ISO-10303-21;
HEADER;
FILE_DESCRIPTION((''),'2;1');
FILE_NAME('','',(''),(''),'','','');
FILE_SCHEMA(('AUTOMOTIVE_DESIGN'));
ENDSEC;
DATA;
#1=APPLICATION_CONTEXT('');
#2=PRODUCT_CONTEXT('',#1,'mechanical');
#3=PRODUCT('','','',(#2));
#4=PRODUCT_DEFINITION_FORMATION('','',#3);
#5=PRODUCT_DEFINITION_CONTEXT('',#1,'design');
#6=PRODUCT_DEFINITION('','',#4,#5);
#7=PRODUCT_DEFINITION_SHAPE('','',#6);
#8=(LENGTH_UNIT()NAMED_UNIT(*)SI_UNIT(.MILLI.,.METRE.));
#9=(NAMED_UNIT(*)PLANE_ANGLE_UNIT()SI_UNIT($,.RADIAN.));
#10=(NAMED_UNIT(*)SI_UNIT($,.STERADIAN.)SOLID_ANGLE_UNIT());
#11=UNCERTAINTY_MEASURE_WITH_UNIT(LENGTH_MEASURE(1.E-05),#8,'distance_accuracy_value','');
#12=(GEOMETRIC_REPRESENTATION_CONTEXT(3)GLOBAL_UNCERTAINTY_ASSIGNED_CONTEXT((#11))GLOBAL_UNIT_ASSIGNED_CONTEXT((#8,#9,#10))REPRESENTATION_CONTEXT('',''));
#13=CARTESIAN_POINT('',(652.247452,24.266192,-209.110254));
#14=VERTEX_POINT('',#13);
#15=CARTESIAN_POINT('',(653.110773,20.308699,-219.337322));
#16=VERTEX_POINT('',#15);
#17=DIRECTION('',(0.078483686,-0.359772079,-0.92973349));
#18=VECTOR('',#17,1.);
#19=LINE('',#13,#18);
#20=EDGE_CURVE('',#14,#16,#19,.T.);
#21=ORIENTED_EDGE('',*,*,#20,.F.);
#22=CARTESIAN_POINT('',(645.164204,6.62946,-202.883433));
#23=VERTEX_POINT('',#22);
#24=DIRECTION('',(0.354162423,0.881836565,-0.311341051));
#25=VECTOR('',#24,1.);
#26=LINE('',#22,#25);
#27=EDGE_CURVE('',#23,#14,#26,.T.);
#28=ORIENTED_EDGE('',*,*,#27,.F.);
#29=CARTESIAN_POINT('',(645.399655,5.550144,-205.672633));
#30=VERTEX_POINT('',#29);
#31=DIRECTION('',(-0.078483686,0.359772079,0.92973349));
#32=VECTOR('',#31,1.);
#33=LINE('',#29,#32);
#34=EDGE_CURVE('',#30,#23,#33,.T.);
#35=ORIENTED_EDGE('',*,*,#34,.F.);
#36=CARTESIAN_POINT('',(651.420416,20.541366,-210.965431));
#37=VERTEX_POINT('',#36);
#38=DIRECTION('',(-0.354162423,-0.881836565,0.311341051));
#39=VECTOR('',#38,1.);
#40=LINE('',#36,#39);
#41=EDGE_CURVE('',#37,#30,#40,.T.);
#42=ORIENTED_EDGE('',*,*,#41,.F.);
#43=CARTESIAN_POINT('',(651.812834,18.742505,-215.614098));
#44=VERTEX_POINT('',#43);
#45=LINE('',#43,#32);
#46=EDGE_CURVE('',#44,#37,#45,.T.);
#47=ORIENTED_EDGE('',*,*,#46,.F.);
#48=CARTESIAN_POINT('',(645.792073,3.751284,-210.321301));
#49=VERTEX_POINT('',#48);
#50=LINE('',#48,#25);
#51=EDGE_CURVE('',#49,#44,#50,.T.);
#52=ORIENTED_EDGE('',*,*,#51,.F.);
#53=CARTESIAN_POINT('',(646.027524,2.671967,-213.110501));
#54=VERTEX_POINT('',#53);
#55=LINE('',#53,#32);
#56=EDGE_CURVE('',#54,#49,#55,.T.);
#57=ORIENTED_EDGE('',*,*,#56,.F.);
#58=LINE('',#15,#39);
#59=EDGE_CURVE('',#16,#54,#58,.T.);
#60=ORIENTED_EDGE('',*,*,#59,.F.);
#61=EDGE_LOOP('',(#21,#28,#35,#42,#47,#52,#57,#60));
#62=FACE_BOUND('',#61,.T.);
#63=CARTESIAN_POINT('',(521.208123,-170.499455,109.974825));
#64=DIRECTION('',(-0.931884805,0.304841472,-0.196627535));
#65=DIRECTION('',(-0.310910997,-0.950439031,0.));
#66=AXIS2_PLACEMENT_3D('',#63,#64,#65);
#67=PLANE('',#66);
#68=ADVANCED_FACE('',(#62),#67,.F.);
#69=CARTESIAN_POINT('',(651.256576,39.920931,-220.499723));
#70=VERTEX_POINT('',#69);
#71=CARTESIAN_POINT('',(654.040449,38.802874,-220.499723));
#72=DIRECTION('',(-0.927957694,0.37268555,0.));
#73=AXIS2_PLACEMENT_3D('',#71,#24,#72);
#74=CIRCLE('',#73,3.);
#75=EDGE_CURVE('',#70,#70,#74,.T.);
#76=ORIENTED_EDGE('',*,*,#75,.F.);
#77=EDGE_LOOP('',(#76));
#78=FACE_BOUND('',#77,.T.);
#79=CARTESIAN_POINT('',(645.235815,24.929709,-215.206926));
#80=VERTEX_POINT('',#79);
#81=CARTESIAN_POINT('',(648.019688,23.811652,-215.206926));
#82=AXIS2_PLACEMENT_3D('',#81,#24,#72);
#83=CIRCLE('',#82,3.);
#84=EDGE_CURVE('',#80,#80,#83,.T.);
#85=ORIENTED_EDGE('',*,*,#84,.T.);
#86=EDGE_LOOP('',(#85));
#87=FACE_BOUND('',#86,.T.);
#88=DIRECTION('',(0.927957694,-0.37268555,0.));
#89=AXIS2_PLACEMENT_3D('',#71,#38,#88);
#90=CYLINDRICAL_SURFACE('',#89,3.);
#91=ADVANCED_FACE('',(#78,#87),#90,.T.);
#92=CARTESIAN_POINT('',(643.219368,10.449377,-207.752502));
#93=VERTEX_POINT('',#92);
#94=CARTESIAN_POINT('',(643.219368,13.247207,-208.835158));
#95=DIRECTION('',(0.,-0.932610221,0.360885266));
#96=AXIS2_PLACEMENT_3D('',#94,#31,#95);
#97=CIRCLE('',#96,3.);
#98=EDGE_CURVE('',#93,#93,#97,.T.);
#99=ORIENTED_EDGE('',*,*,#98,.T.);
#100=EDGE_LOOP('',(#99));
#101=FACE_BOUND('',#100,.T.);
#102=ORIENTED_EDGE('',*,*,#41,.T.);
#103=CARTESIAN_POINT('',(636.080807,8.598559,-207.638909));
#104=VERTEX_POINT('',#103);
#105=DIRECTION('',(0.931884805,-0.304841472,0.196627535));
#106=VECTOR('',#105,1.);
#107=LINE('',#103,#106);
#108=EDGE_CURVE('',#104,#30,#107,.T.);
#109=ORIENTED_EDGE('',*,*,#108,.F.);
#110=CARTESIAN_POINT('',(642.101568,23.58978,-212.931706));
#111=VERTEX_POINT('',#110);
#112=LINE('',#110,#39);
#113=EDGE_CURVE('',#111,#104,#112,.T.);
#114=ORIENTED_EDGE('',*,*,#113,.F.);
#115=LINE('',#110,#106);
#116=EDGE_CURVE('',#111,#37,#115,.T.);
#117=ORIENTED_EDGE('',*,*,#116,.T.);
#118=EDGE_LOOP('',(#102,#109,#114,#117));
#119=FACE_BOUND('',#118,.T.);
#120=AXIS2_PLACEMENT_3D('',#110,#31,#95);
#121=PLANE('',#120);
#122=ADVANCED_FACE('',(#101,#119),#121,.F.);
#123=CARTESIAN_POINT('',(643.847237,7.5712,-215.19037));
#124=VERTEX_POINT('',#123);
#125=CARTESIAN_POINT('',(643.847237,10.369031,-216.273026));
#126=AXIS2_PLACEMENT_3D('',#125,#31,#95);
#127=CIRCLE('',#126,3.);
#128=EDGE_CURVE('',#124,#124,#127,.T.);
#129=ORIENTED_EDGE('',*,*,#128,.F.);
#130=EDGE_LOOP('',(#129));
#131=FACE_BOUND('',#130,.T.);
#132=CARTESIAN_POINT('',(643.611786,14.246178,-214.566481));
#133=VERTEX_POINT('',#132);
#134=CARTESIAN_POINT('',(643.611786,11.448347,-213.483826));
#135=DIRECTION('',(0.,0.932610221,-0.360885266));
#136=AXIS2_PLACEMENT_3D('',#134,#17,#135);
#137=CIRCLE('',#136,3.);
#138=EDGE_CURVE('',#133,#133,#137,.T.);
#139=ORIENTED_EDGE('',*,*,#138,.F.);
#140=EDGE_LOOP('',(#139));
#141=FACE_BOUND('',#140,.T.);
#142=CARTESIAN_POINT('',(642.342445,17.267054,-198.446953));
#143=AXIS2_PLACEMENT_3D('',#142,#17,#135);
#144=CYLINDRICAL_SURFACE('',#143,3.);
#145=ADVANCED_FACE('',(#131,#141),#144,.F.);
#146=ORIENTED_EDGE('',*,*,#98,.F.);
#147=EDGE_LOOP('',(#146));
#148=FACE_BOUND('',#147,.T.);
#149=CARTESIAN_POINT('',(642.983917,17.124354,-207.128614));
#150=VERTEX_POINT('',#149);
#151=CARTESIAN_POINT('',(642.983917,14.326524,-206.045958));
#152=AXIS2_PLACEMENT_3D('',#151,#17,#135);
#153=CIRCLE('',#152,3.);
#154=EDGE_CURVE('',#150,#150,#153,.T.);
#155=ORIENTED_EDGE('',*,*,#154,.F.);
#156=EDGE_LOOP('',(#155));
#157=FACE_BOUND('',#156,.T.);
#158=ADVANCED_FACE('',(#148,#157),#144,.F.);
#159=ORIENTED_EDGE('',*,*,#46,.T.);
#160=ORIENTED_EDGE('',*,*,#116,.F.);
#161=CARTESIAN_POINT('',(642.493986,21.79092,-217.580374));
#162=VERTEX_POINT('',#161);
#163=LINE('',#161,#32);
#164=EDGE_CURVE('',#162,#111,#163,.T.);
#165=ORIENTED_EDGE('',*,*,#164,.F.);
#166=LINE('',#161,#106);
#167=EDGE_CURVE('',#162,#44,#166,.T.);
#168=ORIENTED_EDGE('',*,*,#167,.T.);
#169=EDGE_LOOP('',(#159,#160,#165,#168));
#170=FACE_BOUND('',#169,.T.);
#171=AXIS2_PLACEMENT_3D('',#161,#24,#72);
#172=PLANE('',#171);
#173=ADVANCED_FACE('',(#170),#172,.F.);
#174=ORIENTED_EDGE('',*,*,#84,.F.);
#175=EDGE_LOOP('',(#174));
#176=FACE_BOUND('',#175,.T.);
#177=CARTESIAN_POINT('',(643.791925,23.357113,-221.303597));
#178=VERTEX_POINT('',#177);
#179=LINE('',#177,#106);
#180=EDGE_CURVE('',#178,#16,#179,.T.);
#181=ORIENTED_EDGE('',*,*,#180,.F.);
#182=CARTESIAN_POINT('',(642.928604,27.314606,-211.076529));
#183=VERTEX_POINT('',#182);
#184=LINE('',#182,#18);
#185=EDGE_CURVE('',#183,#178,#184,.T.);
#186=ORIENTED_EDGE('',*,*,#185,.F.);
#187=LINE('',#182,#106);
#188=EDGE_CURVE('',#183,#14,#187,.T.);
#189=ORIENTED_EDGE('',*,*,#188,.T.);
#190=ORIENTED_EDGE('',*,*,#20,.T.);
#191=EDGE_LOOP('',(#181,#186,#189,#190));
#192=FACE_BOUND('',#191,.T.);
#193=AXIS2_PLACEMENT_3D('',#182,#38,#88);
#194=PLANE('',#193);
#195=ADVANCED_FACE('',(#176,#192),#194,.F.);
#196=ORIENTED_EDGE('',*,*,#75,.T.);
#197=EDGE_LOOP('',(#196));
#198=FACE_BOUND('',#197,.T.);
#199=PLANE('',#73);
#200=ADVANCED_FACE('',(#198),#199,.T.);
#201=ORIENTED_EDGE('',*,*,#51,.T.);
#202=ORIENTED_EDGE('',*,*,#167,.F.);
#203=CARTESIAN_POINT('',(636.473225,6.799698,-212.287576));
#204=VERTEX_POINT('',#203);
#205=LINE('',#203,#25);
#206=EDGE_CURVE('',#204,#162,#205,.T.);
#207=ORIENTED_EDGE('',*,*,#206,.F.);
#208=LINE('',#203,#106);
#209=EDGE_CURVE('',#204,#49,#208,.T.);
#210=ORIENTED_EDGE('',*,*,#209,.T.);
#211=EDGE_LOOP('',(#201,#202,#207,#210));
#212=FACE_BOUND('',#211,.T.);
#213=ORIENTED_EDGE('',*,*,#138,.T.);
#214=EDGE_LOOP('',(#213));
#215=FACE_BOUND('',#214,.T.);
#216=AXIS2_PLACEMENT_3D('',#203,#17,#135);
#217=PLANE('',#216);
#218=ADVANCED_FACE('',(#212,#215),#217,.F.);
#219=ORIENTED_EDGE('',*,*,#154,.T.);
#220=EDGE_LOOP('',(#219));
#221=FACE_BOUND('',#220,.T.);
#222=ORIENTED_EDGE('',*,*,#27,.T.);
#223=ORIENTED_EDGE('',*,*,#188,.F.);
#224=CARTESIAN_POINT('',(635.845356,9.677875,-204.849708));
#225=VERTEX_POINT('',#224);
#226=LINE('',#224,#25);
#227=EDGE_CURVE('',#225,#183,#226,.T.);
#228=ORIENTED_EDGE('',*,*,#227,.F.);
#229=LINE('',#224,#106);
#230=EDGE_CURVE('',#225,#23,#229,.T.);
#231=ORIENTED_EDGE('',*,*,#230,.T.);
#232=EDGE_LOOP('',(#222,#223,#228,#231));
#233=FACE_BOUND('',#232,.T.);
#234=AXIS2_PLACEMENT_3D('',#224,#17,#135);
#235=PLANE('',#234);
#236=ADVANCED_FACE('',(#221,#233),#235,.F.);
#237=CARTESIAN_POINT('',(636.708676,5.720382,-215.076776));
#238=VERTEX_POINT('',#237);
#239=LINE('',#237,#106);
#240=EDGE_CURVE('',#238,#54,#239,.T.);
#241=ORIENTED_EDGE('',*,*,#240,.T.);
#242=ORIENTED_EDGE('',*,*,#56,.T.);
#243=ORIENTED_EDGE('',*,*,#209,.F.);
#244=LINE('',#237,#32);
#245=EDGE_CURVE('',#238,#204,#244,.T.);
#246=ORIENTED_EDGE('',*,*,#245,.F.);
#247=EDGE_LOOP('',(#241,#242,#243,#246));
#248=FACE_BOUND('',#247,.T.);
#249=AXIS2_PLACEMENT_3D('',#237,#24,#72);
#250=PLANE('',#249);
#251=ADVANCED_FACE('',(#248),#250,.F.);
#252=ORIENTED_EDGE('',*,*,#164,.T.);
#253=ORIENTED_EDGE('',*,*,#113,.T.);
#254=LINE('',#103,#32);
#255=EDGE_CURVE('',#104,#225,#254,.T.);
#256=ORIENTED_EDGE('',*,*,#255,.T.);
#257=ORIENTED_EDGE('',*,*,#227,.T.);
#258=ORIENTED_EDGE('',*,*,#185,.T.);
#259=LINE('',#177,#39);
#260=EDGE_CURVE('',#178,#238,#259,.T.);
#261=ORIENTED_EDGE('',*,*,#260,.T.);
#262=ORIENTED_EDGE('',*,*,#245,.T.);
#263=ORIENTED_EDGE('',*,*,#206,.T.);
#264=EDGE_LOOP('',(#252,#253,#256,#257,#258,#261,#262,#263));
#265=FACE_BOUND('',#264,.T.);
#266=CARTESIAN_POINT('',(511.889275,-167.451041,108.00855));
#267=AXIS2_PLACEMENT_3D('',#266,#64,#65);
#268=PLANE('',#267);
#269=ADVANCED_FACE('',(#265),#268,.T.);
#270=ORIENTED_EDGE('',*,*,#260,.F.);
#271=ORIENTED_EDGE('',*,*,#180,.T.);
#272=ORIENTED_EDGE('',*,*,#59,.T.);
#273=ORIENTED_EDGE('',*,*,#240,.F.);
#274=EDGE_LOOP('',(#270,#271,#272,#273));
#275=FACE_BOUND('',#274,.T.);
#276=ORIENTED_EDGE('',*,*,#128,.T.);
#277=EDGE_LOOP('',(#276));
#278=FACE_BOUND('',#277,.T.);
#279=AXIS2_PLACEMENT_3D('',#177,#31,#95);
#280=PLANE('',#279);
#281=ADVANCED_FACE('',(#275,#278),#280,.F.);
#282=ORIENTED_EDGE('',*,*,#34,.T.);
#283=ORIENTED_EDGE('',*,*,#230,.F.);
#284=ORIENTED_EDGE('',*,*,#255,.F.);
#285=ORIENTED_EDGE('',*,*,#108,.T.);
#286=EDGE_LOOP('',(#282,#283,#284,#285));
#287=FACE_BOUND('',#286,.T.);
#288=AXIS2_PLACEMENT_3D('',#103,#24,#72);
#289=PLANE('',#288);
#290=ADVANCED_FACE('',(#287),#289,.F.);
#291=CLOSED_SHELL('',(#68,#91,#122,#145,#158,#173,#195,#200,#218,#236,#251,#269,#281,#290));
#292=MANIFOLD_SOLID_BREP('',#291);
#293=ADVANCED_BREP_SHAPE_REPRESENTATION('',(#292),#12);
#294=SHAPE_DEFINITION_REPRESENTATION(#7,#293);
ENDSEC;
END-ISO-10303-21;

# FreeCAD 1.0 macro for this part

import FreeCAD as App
import Part
import Sketcher
Q = App.Units.Quantity

doc = App.newDocument("Part")
body = doc.addObject("PartDesign::Body", "Body")

# Sketch on an angled plane
sketch1 = body.newObject("Sketcher::SketchObject", "Sketch")
sketch1.Placement = App.Placement(App.Vector(707.562217, 137.847, -295.175759), App.Rotation(App.Vector(0.354162423, 0.881836565, -0.311341051), App.Vector(0.078483686, -0.359772079, -0.92973349), App.Vector(-0.931884805, 0.304841472, -0.196627535), "ZXY"))
sketch1.addGeometry(Part.LineSegment(App.Vector(-166.5, -35.5, 0), App.Vector(-149.5, -35.5, 0)), False)
sketch1.addGeometry(Part.LineSegment(App.Vector(-149.5, -35.5, 0), App.Vector(-149.5, -40.5, 0)), False)
sketch1.addGeometry(Part.LineSegment(App.Vector(-149.5, -40.5, 0), App.Vector(-166.5, -40.5, 0)), False)
sketch1.addGeometry(Part.LineSegment(App.Vector(-166.5, -40.5, 0), App.Vector(-166.5, -43.5, 0)), False)
sketch1.addGeometry(Part.LineSegment(App.Vector(-166.5, -43.5, 0), App.Vector(-146.5, -43.5, 0)), False)
sketch1.addGeometry(Part.LineSegment(App.Vector(-146.5, -43.5, 0), App.Vector(-146.5, -32.5, 0)), False)
sketch1.addGeometry(Part.LineSegment(App.Vector(-146.5, -32.5, 0), App.Vector(-166.5, -32.5, 0)), False)
sketch1.addGeometry(Part.LineSegment(App.Vector(-166.5, -32.5, 0), App.Vector(-166.5, -35.5, 0)), False)
sketch1.addConstraint(Sketcher.Constraint("Coincident", 0, 2, 1, 1))
sketch1.addConstraint(Sketcher.Constraint("Coincident", 1, 2, 2, 1))
sketch1.addConstraint(Sketcher.Constraint("Coincident", 2, 2, 3, 1))
sketch1.addConstraint(Sketcher.Constraint("Coincident", 3, 2, 4, 1))
sketch1.addConstraint(Sketcher.Constraint("Coincident", 4, 2, 5, 1))
sketch1.addConstraint(Sketcher.Constraint("Coincident", 5, 2, 6, 1))
sketch1.addConstraint(Sketcher.Constraint("Coincident", 6, 2, 7, 1))
sketch1.addConstraint(Sketcher.Constraint("Coincident", 7, 2, 0, 1))
sketch1.addConstraint(Sketcher.Constraint("Horizontal", 0))
sketch1.addConstraint(Sketcher.Constraint("Vertical", 1))
sketch1.addConstraint(Sketcher.Constraint("Horizontal", 2))
sketch1.addConstraint(Sketcher.Constraint("Vertical", 3))
sketch1.addConstraint(Sketcher.Constraint("Horizontal", 4))
sketch1.addConstraint(Sketcher.Constraint("Vertical", 5))
sketch1.addConstraint(Sketcher.Constraint("Horizontal", 6))
sketch1.addConstraint(Sketcher.Constraint("Vertical", 7))
sketch1.addConstraint(Sketcher.Constraint("Vertical", 3, 2, 6, 2))
sketch1.addConstraint(Sketcher.Constraint("Equal", 3, 7))
sketch1.addConstraint(Sketcher.Constraint("DistanceX", 0, 1, 0, 2, Q("17 mm")))
sketch1.addConstraint(Sketcher.Constraint("DistanceX", 4, 1, 4, 2, Q("20 mm")))
sketch1.addConstraint(Sketcher.Constraint("DistanceY", 1, 2, 1, 1, Q("5 mm")))
sketch1.addConstraint(Sketcher.Constraint("DistanceY", 3, 2, 3, 1, Q("3 mm")))
sketch1.addConstraint(Sketcher.Constraint("DistanceX", 0, 2, -1, 1, Q("149.545846 mm")))
sketch1.addConstraint(Sketcher.Constraint("DistanceY", 0, 2, -1, 1, Q("35.496085 mm")))
pad1 = body.newObject("PartDesign::Pad", "Pad")
pad1.Profile = sketch1
pad1.Length = 10

# Sketch on an angled plane
sketch2 = body.newObject("Sketcher::SketchObject", "Sketch001")
sketch2.Placement = App.Placement(App.Vector(18.826454, -86.301152, -223.021952), App.Rotation(App.Vector(-0.996915398, -0.028323606, -0.073194688), App.Vector(0, 0.932610221, -0.360885266), App.Vector(0.078483686, -0.359772079, -0.92973349), "ZXY"))
sketch2.addGeometry(Part.Circle(App.Vector(-626.3, 87.7, 0), App.Vector(0, 0, 1), 3), False)
sketch2.addConstraint(Sketcher.Constraint("Diameter", 0, Q("6 mm")))
sketch2.addConstraint(Sketcher.Constraint("DistanceX", 0, 3, -1, 1, Q("626.324876 mm")))
sketch2.addConstraint(Sketcher.Constraint("DistanceY", -1, 1, 0, 3, Q("87.720013 mm")))
pocket1 = body.newObject("PartDesign::Pocket", "Pocket")
pocket1.Profile = sketch2
pocket1.Type = "ThroughAll"
pocket1.Midplane = True

# Sketch on an angled plane
sketch3 = body.newObject("Sketcher::SketchObject", "Sketch002")
sketch3.Placement = App.Placement(App.Vector(112.448326, 279.987483, -98.852328), App.Rotation(App.Vector(0.935183927, -0.333959305, 0.117907609), App.Vector(0, -0.332919591, -0.942955218), App.Vector(0.354162423, 0.881836565, -0.311341051), "ZXY"))
sketch3.addGeometry(Part.Circle(App.Vector(572.7, 195, 0), App.Vector(0, 0, 1), 3), False)
sketch3.addConstraint(Sketcher.Constraint("Diameter", 0, Q("6 mm")))
sketch3.addConstraint(Sketcher.Constraint("DistanceX", -1, 1, 0, 3, Q("572.69094 mm")))
sketch3.addConstraint(Sketcher.Constraint("DistanceY", -1, 1, 0, 3, Q("195.003128 mm")))
pad2 = body.newObject("PartDesign::Pad", "Pad001")
pad2.Profile = sketch3
pad2.Length = 17

doc.recompute()
